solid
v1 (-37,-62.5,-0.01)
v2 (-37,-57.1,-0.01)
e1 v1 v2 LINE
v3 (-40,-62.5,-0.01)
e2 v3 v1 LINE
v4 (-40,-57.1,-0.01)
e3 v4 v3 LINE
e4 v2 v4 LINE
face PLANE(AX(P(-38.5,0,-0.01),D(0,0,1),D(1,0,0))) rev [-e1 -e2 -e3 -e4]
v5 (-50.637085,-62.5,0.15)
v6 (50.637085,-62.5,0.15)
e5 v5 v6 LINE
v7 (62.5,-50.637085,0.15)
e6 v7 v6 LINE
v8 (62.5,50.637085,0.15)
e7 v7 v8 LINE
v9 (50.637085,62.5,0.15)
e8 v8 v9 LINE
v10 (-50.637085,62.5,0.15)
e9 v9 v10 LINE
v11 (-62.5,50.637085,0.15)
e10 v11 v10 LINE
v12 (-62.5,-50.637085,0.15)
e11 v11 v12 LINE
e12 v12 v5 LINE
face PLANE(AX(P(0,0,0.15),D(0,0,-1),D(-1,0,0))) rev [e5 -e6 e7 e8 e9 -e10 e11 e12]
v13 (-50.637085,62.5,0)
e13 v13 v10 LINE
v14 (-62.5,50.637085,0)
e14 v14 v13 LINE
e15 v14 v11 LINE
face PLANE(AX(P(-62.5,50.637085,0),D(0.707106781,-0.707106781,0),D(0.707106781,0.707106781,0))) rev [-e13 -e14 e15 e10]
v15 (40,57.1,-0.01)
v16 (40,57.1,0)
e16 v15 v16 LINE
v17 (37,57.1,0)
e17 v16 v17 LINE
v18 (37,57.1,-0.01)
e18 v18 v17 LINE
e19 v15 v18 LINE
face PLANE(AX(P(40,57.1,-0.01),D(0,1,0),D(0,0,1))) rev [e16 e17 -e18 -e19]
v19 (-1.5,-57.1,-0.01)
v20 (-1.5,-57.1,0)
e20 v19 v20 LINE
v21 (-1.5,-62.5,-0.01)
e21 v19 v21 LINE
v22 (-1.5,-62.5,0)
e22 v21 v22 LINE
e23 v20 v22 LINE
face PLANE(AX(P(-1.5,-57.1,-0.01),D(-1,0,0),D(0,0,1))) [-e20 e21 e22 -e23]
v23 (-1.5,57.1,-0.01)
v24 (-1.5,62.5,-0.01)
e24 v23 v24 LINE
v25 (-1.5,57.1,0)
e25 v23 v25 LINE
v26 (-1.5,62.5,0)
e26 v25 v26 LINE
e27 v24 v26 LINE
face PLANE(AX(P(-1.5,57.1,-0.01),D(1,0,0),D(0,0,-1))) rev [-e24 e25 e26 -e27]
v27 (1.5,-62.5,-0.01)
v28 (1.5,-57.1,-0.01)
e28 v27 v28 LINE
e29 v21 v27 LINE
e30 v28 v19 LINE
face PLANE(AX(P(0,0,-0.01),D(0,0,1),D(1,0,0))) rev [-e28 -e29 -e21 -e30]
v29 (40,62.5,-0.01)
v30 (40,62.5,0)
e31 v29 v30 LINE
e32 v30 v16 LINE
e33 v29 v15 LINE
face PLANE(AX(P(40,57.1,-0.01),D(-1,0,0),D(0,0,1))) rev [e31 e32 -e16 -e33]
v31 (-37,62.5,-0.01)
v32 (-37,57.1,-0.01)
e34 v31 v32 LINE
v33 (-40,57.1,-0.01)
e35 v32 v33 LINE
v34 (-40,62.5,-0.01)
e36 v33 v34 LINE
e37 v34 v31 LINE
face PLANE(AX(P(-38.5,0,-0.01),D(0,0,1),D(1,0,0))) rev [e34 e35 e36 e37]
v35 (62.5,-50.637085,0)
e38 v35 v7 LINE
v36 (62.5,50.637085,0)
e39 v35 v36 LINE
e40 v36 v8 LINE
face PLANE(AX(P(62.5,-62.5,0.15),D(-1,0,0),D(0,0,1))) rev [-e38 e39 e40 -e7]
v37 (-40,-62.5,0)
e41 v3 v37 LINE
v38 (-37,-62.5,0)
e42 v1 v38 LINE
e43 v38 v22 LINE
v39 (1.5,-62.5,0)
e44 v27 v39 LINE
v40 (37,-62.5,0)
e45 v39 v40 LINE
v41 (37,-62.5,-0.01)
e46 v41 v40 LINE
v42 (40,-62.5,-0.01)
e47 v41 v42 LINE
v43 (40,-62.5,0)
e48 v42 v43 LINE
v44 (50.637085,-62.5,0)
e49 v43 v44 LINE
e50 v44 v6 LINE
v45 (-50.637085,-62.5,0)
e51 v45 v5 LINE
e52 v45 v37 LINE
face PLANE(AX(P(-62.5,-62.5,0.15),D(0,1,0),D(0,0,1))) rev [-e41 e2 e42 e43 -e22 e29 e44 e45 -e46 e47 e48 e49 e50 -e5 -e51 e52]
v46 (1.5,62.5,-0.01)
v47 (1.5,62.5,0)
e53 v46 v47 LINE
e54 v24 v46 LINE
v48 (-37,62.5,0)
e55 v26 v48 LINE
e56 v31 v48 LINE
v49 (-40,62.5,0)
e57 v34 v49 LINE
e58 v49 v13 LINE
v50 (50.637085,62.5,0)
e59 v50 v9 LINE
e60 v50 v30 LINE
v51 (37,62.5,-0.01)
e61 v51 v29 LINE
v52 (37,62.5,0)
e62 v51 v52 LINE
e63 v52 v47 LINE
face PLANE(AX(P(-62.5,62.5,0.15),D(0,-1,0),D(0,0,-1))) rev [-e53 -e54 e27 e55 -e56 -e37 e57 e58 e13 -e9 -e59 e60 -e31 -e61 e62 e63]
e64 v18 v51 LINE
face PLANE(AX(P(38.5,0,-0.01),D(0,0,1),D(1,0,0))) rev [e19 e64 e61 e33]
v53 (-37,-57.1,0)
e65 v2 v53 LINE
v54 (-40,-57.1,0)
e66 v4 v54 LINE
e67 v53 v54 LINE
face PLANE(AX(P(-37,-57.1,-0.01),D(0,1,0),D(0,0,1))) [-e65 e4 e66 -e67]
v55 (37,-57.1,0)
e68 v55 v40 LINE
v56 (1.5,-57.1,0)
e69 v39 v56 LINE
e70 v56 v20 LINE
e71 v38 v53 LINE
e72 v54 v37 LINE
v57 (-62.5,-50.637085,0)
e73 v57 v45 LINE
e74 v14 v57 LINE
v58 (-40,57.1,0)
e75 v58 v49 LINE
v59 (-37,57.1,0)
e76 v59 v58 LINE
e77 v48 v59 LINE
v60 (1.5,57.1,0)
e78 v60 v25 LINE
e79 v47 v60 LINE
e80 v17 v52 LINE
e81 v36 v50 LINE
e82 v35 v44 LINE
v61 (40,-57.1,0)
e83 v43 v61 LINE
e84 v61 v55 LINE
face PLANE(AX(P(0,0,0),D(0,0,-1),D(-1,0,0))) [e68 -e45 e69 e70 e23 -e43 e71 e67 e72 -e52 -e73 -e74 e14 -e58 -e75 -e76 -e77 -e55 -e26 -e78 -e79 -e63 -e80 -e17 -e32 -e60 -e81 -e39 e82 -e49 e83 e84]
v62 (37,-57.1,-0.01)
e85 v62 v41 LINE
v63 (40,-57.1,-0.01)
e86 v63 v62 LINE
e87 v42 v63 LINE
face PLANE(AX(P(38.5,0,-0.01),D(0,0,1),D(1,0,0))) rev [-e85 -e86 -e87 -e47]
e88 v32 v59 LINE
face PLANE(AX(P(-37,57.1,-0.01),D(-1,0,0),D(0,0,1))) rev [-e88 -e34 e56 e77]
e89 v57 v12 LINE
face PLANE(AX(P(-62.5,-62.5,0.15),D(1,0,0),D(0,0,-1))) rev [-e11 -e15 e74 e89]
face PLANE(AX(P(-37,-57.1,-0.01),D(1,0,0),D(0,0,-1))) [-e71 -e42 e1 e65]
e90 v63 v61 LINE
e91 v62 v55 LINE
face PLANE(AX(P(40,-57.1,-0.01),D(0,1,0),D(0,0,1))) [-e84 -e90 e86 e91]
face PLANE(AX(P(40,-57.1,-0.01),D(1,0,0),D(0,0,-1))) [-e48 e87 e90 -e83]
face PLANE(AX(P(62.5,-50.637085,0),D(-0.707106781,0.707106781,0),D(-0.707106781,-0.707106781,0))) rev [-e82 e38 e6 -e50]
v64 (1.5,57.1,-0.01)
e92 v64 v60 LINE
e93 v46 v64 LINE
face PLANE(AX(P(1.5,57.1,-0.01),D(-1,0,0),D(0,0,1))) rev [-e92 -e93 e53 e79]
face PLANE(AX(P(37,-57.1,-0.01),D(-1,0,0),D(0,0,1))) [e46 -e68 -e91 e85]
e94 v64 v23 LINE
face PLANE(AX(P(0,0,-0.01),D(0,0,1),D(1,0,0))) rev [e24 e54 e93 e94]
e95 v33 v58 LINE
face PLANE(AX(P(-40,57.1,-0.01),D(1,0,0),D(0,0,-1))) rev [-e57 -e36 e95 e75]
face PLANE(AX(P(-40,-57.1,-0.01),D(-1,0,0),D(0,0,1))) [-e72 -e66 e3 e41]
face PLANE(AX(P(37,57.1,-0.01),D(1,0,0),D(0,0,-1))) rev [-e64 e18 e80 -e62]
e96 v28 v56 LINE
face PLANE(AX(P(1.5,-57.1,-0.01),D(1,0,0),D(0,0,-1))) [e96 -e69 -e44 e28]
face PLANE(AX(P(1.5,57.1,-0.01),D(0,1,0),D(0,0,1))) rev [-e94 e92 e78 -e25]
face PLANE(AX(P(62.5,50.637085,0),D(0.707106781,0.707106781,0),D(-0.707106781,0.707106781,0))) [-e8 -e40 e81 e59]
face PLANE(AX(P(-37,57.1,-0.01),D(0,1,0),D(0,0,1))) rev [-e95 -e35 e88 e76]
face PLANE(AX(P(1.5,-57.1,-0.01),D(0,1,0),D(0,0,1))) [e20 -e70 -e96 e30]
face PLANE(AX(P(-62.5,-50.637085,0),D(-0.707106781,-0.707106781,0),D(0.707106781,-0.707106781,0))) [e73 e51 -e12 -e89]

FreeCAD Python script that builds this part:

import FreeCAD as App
import Part
import Sketcher
Q = App.Units.Quantity


def add_polygon(sketch, points):
    """Adds a closed chain of lines whose ends are joined by coincident constraints."""
    first, n = sketch.GeometryCount, len(points)
    for a, b in zip(points, points[1:] + points[:1]):
        sketch.addGeometry(Part.LineSegment(App.Vector(*a, 0), App.Vector(*b, 0)), False)
    for i in range(n):
        sketch.addConstraint(Sketcher.Constraint("Coincident", first + i, 2, first + (i + 1) % n, 1))

doc = App.newDocument("Part")
body = doc.addObject("PartDesign::Body", "Body")

# Sketch on XY plane
sketch1 = body.newObject("Sketcher::SketchObject", "Sketch")
sketch1.AttachmentSupport = (doc.getObject("XY_Plane"), [""])
sketch1.MapMode = "FlatFace"
add_polygon(sketch1, [(-62, 62), (-62, -62), (62, -62), (62, 62)])  # lines 0-3
sketch1.addConstraint([
    Sketcher.Constraint("Vertical", 0),
    Sketcher.Constraint("Horizontal", 1),
    Sketcher.Constraint("Vertical", 2),
    Sketcher.Constraint("Horizontal", 3),
    Sketcher.Constraint("Symmetric", 0, 2, 2, 2, -1, 1),
    Sketcher.Constraint("Equal", 3, 0),
    Sketcher.Constraint("DistanceX", 1, 1, 1, 2, Q("125 mm")),
])
pad1 = body.newObject("PartDesign::Pad", "Pad")
pad1.Profile = sketch1
pad1.Length = 0.15

# Sketch on XY plane
sketch2 = body.newObject("Sketcher::SketchObject", "Sketch001")
sketch2.AttachmentSupport = (doc.getObject("XY_Plane"), [""])
sketch2.MapMode = "FlatFace"
sketch2.AttachmentOffset = App.Placement(App.Vector(0, 0, 0.15), App.Rotation())
add_polygon(sketch2, [(-62, 51), (-51, 62), (-62, 62)])  # lines 0-2
sketch2.addConstraint([
    Sketcher.Constraint("Horizontal", 1),
    Sketcher.Constraint("Vertical", 2),
    Sketcher.Constraint("Equal", 1, 2),
    Sketcher.Constraint("DistanceY", -1, 1, 0, 2, Q("62.5 mm")),
    Sketcher.Constraint("DistanceX", 1, 2, -1, 1, Q("62.5 mm")),
    Sketcher.Constraint("DistanceX", 1, 2, 1, 1, Q("11.862915 mm")),
])
pocket1 = body.newObject("PartDesign::Pocket", "Pocket")
pocket1.Profile = sketch2
pocket1.Type = "ThroughAll"
doc.recompute()

mirrored = body.newObject("PartDesign::Mirrored", "Mirrored")
mirrored.Originals = [pocket1]
mirrored.MirrorPlane = (doc.getObject("XZ_Plane"), [""])
body.Tip = mirrored
doc.recompute()

mirrored2 = body.newObject("PartDesign::Mirrored", "Mirrored001")
mirrored2.Originals = [pocket1]
mirrored2.MirrorPlane = (doc.getObject("YZ_Plane"), [""])
body.Tip = mirrored2

# Sketch on XY plane
sketch3 = body.newObject("Sketcher::SketchObject", "Sketch002")
sketch3.AttachmentSupport = (doc.getObject("XY_Plane"), [""])
sketch3.MapMode = "FlatFace"
sketch3.AttachmentOffset = App.Placement(App.Vector(0, 0, 0.15), App.Rotation())
add_polygon(sketch3, [(62, -51), (51, -62), (62, -62)])  # lines 0-2
sketch3.addConstraint([
    Sketcher.Constraint("Horizontal", 1),
    Sketcher.Constraint("Vertical", 2),
    Sketcher.Constraint("Equal", 1, 2),
    Sketcher.Constraint("DistanceY", 0, 2, -1, 1, Q("62.5 mm")),
    Sketcher.Constraint("DistanceX", -1, 1, 1, 2, Q("62.5 mm")),
    Sketcher.Constraint("DistanceX", 1, 1, 1, 2, Q("11.862915 mm")),
])
pocket2 = body.newObject("PartDesign::Pocket", "Pocket001")
pocket2.Profile = sketch3
pocket2.Type = "ThroughAll"

# Sketch on XY plane
sketch4 = body.newObject("Sketcher::SketchObject", "Sketch003")
sketch4.AttachmentSupport = (doc.getObject("XY_Plane"), [""])
sketch4.MapMode = "FlatFace"
add_polygon(sketch4, [(1.5, 62.5), (1.5, 57.1), (-1.5, 57.1), (-1.5, 62.5)])  # lines 0-3
sketch4.addConstraint([
    Sketcher.Constraint("Vertical", 0),
    Sketcher.Constraint("Horizontal", 1),
    Sketcher.Constraint("Vertical", 2),
    Sketcher.Constraint("Horizontal", 3),
    Sketcher.Constraint("DistanceX", 1, 2, 1, 1, Q("3 mm")),
    Sketcher.Constraint("DistanceY", 0, 2, 0, 1, Q("5.4 mm")),
    Sketcher.Constraint("DistanceX", -1, 1, 0, 2, Q("1.5 mm")),
    Sketcher.Constraint("DistanceY", -1, 1, 0, 2, Q("57.1 mm")),
])
pad2 = body.newObject("PartDesign::Pad", "Pad001")
pad2.Profile = sketch4
pad2.Length = 0.01
pad2.Reversed = True
doc.recompute()

linearpattern = body.newObject("PartDesign::LinearPattern", "LinearPattern")
linearpattern.Originals = [pad2]
linearpattern.Direction = (doc.getObject("X_Axis"), [""])
linearpattern.Mode = "offset"
linearpattern.Offset = 38.5
linearpattern.Occurrences = 2
linearpattern.Reversed = True
body.Tip = linearpattern
doc.recompute()

linearpattern2 = body.newObject("PartDesign::LinearPattern", "LinearPattern001")
linearpattern2.Originals = [pad2]
linearpattern2.Direction = (doc.getObject("X_Axis"), [""])
linearpattern2.Mode = "offset"
linearpattern2.Offset = 38.5
linearpattern2.Occurrences = 2
body.Tip = linearpattern2
doc.recompute()

mirrored3 = body.newObject("PartDesign::Mirrored", "Mirrored002")
mirrored3.Originals = [pad2]
mirrored3.MirrorPlane = (doc.getObject("XZ_Plane"), [""])
body.Tip = mirrored3

# Sketch on XY plane
sketch5 = body.newObject("Sketcher::SketchObject", "Sketch004")
sketch5.AttachmentSupport = (doc.getObject("XY_Plane"), [""])
sketch5.MapMode = "FlatFace"
add_polygon(sketch5, [(-37, -57.1), (-37, -62.5), (-40, -62.5), (-40, -57.1)])  # lines 0-3
sketch5.addConstraint([
    Sketcher.Constraint("Vertical", 0),
    Sketcher.Constraint("Horizontal", 1),
    Sketcher.Constraint("Vertical", 2),
    Sketcher.Constraint("Horizontal", 3),
    Sketcher.Constraint("DistanceX", 1, 2, 1, 1, Q("3 mm")),
    Sketcher.Constraint("DistanceY", 0, 2, 0, 1, Q("5.4 mm")),
    Sketcher.Constraint("DistanceX", 0, 2, -1, 1, Q("37 mm")),
    Sketcher.Constraint("DistanceY", 0, 2, -1, 1, Q("62.5 mm")),
])
pad3 = body.newObject("PartDesign::Pad", "Pad002")
pad3.Profile = sketch5
pad3.Length = 0.01
pad3.Reversed = True

# Sketch on XY plane
sketch6 = body.newObject("Sketcher::SketchObject", "Sketch005")
sketch6.AttachmentSupport = (doc.getObject("XY_Plane"), [""])
sketch6.MapMode = "FlatFace"
add_polygon(sketch6, [(40, -57.1), (40, -62.5), (37, -62.5), (37, -57.1)])  # lines 0-3
sketch6.addConstraint([
    Sketcher.Constraint("Vertical", 0),
    Sketcher.Constraint("Horizontal", 1),
    Sketcher.Constraint("Vertical", 2),
    Sketcher.Constraint("Horizontal", 3),
    Sketcher.Constraint("DistanceX", 1, 2, 1, 1, Q("3 mm")),
    Sketcher.Constraint("DistanceY", 0, 2, 0, 1, Q("5.4 mm")),
    Sketcher.Constraint("DistanceX", -1, 1, 0, 2, Q("40 mm")),
    Sketcher.Constraint("DistanceY", 0, 2, -1, 1, Q("62.5 mm")),
])
pad4 = body.newObject("PartDesign::Pad", "Pad003")
pad4.Profile = sketch6
pad4.Length = 0.01
pad4.Reversed = True

doc.recompute()
